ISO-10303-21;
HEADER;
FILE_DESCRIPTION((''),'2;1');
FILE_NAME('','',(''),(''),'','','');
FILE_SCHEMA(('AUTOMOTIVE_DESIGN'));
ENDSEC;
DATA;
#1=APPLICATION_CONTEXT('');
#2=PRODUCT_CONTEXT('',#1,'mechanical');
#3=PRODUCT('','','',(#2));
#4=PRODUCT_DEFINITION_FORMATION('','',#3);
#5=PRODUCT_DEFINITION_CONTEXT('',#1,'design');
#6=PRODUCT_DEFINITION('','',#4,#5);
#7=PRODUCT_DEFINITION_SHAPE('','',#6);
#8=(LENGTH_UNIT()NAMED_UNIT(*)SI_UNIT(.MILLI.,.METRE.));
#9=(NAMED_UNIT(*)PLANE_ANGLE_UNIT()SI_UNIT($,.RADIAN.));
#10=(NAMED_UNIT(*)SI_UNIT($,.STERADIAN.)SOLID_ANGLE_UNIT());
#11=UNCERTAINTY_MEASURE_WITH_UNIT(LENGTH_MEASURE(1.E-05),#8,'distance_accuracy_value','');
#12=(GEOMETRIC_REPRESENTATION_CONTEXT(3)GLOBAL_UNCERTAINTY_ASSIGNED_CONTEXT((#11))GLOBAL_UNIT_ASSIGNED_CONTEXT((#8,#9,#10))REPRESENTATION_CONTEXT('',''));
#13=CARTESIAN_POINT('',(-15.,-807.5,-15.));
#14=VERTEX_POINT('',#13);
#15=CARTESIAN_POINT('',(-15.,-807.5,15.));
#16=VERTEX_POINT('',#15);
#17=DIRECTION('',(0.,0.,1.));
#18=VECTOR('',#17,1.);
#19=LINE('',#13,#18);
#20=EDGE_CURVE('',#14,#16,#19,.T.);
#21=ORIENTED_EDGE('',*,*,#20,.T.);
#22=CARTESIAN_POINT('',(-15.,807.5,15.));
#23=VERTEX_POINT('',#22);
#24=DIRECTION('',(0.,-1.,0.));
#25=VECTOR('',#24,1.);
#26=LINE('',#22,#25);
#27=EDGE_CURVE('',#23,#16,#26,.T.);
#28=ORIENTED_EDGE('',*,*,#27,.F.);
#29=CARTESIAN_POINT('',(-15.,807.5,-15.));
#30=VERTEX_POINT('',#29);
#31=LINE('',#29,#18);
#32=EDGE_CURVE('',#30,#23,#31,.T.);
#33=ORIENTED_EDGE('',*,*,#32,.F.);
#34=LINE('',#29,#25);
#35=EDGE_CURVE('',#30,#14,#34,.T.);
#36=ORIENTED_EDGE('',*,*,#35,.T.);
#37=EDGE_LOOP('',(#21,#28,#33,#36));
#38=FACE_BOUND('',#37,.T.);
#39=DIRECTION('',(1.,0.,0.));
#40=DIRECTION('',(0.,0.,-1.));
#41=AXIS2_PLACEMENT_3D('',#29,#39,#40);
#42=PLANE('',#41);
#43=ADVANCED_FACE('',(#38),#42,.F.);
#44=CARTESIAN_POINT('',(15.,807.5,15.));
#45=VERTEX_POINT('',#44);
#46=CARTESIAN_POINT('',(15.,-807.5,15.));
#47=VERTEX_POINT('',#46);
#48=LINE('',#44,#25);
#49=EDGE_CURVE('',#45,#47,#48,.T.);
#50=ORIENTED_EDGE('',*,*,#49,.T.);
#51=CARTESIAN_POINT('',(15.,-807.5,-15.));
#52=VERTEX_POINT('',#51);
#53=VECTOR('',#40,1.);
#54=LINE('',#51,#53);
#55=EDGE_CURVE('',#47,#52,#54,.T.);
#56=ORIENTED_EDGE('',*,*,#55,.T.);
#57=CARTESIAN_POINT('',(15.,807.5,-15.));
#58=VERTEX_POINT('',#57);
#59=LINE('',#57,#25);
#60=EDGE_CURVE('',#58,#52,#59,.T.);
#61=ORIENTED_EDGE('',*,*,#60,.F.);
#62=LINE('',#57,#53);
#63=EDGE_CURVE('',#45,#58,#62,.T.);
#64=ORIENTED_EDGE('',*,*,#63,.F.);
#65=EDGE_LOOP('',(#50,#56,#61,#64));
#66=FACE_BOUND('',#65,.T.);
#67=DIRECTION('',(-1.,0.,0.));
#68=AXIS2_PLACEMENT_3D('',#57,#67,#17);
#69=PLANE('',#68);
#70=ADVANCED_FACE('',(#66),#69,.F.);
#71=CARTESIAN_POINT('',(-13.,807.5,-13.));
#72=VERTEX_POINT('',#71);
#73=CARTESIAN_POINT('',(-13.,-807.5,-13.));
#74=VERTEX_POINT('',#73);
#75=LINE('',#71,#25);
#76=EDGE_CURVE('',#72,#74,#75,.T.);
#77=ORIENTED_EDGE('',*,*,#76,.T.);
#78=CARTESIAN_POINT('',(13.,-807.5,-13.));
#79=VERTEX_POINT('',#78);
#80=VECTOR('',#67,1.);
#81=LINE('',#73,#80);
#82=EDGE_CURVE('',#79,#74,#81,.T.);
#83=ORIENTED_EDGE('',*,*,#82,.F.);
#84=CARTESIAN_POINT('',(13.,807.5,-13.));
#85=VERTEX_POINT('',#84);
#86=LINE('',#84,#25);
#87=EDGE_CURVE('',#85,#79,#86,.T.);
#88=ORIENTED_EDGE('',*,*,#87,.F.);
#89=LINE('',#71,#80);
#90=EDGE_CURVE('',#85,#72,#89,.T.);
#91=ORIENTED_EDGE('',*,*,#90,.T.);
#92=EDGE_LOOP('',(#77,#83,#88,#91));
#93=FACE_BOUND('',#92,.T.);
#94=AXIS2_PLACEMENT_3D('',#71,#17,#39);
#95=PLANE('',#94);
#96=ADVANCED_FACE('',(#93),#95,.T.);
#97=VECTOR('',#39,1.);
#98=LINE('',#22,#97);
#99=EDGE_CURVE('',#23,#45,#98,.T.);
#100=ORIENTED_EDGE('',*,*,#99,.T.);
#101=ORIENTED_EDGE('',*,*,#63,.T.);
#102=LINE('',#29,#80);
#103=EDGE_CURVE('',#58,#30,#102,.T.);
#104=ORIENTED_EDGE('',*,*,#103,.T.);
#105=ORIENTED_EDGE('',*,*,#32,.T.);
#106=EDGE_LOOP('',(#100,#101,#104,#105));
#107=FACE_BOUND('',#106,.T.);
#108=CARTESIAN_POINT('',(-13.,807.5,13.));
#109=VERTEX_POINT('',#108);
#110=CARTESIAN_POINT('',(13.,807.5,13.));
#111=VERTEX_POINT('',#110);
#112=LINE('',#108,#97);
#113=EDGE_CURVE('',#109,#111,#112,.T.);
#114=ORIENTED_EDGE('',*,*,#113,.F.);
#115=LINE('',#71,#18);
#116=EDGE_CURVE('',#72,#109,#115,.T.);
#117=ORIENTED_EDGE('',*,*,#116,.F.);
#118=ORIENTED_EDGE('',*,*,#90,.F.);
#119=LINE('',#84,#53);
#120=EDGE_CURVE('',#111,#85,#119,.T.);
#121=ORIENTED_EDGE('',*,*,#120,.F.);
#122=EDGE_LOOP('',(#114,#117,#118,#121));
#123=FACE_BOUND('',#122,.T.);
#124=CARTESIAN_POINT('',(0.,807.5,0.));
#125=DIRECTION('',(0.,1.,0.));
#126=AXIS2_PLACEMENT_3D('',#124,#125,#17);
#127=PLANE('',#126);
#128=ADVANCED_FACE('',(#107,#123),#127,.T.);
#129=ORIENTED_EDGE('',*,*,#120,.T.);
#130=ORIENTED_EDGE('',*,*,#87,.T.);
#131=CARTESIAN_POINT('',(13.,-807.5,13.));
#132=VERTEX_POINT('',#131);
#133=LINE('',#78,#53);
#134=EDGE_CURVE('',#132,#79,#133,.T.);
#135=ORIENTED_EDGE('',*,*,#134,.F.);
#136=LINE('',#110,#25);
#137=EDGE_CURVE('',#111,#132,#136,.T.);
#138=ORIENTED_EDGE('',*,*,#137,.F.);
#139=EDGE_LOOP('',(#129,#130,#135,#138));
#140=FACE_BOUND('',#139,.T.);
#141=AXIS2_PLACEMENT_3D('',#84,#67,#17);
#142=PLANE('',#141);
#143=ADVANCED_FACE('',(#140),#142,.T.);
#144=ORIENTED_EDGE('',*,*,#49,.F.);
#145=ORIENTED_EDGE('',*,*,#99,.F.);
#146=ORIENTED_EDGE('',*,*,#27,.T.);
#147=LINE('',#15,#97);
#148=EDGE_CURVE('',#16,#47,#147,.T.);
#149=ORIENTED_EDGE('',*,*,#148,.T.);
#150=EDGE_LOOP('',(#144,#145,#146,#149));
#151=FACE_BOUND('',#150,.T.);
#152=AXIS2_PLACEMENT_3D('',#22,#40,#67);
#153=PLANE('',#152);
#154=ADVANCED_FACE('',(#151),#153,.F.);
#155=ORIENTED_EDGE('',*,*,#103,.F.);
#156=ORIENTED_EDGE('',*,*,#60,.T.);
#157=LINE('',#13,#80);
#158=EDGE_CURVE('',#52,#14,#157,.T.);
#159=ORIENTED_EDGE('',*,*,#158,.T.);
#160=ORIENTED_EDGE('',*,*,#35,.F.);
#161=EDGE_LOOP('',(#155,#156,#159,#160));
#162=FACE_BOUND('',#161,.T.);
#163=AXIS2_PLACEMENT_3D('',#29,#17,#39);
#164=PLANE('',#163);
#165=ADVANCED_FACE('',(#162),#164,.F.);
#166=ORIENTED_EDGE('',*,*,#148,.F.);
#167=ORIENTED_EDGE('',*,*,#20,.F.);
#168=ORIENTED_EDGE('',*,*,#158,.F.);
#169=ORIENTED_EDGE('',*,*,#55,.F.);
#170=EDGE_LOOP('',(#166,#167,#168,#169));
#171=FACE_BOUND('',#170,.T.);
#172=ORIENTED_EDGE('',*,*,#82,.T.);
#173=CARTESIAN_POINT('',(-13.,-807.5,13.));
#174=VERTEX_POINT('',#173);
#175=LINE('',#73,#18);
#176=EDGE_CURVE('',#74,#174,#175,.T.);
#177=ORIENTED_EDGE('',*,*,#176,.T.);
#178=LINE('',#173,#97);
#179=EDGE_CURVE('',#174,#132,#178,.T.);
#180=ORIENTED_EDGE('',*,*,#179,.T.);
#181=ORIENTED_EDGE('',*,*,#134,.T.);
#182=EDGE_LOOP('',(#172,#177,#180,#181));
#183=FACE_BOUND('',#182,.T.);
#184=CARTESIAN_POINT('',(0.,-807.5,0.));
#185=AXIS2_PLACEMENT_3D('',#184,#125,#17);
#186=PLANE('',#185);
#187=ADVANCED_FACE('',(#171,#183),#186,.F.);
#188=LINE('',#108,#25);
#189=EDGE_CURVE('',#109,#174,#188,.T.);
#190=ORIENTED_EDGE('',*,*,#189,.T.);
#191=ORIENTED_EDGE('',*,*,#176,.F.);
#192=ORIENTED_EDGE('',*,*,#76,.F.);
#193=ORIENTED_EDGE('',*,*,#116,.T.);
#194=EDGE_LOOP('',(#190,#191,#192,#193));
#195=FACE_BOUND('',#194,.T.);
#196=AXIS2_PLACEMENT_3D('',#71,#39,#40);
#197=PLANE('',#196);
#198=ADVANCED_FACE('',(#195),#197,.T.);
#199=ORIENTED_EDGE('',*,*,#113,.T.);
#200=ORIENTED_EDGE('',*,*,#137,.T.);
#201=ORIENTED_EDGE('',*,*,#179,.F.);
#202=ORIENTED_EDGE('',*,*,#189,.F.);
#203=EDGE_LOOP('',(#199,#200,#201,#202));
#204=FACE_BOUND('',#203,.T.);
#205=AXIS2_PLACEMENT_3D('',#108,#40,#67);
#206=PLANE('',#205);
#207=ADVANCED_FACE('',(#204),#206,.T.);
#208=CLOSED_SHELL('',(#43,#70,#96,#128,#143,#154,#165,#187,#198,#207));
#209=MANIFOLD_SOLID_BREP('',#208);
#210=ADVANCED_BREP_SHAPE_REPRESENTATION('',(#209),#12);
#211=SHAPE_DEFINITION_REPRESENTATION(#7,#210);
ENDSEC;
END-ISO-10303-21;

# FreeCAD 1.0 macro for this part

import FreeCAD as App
import Part
import Sketcher
from FreeCAD import Vector
Q = App.Units.Quantity


def add_polygon(sketch, points):
    """Adds a closed chain of lines whose ends are joined by coincident constraints."""
    first, n = sketch.GeometryCount, len(points)
    for a, b in zip(points, points[1:] + points[:1]):
        sketch.addGeometry(Part.LineSegment(App.Vector(*a, 0), App.Vector(*b, 0)), False)
    for i in range(n):
        sketch.addConstraint(Sketcher.Constraint("Coincident", first + i, 2, first + (i + 1) % n, 1))

doc = App.newDocument("Part")
body = doc.addObject("PartDesign::Body", "Body")

# Sketch on XZ plane
sketch1 = body.newObject("Sketcher::SketchObject", "Sketch")
sketch1.AttachmentSupport = (doc.getObject("XZ_Plane"), [""])
sketch1.MapMode = "FlatFace"
add_polygon(sketch1, [(-15, -15), (-15, 15), (15, 15), (15, -15)])  # lines 0-3
add_polygon(sketch1, [(13, 13), (-13, 13), (-13, -13), (13, -13)])  # lines 4-7
sketch1.addConstraint([
    Sketcher.Constraint("Vertical", 0),
    Sketcher.Constraint("Horizontal", 1),
    Sketcher.Constraint("Vertical", 2),
    Sketcher.Constraint("Horizontal", 3),
    Sketcher.Constraint("Horizontal", 4),
    Sketcher.Constraint("Vertical", 5),
    Sketcher.Constraint("Horizontal", 6),
    Sketcher.Constraint("Vertical", 7),
    Sketcher.Constraint("Symmetric", 0, 2, 2, 2, -1, 1),
    Sketcher.Constraint("Symmetric", 4, 2, 6, 2, -1, 1),
    Sketcher.Constraint("Equal", 3, 0),
    Sketcher.Constraint("Equal", 6, 5),
    Sketcher.Constraint("DistanceX", 1, 1, 1, 2, Q("30 mm")),
    Sketcher.Constraint("DistanceX", 4, 2, 4, 1, Q("26 mm")),
])
pad1 = body.newObject("PartDesign::Pad", "Pad")
pad1.Profile = sketch1
pad1.Length = 1615
pad1.Midplane = True

doc.recompute()
